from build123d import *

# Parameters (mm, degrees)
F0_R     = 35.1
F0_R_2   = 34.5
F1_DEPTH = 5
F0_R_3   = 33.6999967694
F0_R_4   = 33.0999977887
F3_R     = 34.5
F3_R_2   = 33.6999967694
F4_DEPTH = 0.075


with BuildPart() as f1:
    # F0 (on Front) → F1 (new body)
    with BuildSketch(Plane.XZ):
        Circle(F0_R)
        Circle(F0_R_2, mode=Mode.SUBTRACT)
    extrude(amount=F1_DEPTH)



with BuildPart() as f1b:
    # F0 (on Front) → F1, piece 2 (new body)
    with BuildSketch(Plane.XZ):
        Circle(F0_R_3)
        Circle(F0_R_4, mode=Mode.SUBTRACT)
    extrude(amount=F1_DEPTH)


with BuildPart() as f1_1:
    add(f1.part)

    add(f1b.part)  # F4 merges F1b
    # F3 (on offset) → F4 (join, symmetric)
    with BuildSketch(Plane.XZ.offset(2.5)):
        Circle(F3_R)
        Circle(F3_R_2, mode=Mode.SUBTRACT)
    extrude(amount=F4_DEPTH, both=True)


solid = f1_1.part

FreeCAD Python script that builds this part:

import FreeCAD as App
import Part
import Sketcher
from FreeCAD import Vector

doc = App.newDocument("Part")
body = doc.addObject("PartDesign::Body", "Body")

# Sketch on XZ plane
sketch1 = body.newObject("Sketcher::SketchObject", "Sketch")
sketch1.AttachmentSupport = (doc.getObject("XZ_Plane"), [""])
sketch1.MapMode = "FlatFace"
sketch1.addGeometry([
    Part.Circle(Vector(0, 0, 0), Vector(0, 0, 1), 35),
    Part.Circle(Vector(0, 0, 0), Vector(0, 0, 1), 34),
], False)
sketch1.addConstraint([
    Sketcher.Constraint("Coincident", 0, 3, -1, 1),
    Sketcher.Constraint("Coincident", 1, 3, -1, 1),
    Sketcher.Constraint("Diameter", 1, 69.0),
    Sketcher.Constraint("Diameter", 0, 70.2),
])
pad1 = body.newObject("PartDesign::Pad", "Pad")
pad1.Profile = sketch1
pad1.Length = 5
body2 = doc.addObject("PartDesign::Body", "Body001")

# Sketch on XZ plane
sketch2 = body2.newObject("Sketcher::SketchObject", "Sketch001")
sketch2.AttachmentSupport = (doc.getObject("XZ_Plane001"), [""])
sketch2.MapMode = "FlatFace"
sketch2.addGeometry([
    Part.Circle(Vector(0, 0, 0), Vector(0, 0, 1), 34),
    Part.Circle(Vector(0, 0, 0), Vector(0, 0, 1), 33),
], False)
sketch2.addConstraint([
    Sketcher.Constraint("Coincident", 0, 3, -1, 1),
    Sketcher.Constraint("Coincident", 1, 3, -1, 1),
    Sketcher.Constraint("Diameter", 0, 67.399994),
    Sketcher.Constraint("Diameter", 1, 66.199996),
])
pad2 = body2.newObject("PartDesign::Pad", "Pad001")
pad2.Profile = sketch2
pad2.Length = 5
body.AllowCompound = True
doc.recompute()

boolean = body.newObject("PartDesign::Boolean", "Boolean")
boolean.Type = "Fuse"
boolean.addObjects([body2])

# Sketch on XZ plane
sketch3 = body.newObject("Sketcher::SketchObject", "Sketch002")
sketch3.AttachmentSupport = (doc.getObject("XZ_Plane"), [""])
sketch3.MapMode = "FlatFace"
sketch3.AttachmentOffset = App.Placement(Vector(0, 0, 2.5), App.Rotation())
sketch3.addGeometry([
    Part.Circle(Vector(0, 0, 0), Vector(0, 0, 1), 34),
    Part.Circle(Vector(0, 0, 0), Vector(0, 0, 1), 34),
], False)
sketch3.addConstraint([
    Sketcher.Constraint("Coincident", 0, 3, -1, 1),
    Sketcher.Constraint("Coincident", 1, 3, -1, 1),
    Sketcher.Constraint("Diameter", 0, 69.0),
    Sketcher.Constraint("Diameter", 1, 67.399994),
])
pad3 = body.newObject("PartDesign::Pad", "Pad002")
pad3.Profile = sketch3
pad3.Length = 0.15
pad3.Midplane = True

doc.recompute()
